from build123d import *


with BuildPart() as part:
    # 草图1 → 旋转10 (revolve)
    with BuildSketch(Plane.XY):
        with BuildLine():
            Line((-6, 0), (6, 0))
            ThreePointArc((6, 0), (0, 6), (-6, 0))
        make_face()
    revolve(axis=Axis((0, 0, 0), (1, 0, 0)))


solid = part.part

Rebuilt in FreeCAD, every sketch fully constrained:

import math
import FreeCAD as App
import Part
import Sketcher

V = App.Vector

doc = App.newDocument("Part")
body = doc.addObject("PartDesign::Body", "Body")

# Sketch on XY plane
sketch1 = body.newObject("Sketcher::SketchObject", "Sketch")
sketch1.AttachmentSupport = (doc.getObject("XY_Plane"), [""])
sketch1.MapMode = "FlatFace"
sketch1.addGeometry([
    Part.LineSegment(V(-6, 0, 0), V(6, 0, 0)),
    Part.ArcOfCircle(Part.Circle(V(0, 0, 0), V(0, 0, 1), 6), math.radians(0), math.radians(180)),
], False)
sketch1.addConstraint([
    Sketcher.Constraint("Coincident", 0, 1, 1, 2),
    Sketcher.Constraint("Coincident", 1, 1, 0, 2),
    Sketcher.Constraint("Horizontal", 0),
    Sketcher.Constraint("Coincident", 1, 3, -1, 1),
    Sketcher.Constraint("PointOnObject", 0, 1, -1),
    Sketcher.Constraint("Radius", 1, 6.0),
])
revolution = body.newObject("PartDesign::Revolution", "Revolution")
revolution.Profile = sketch1
revolution.ReferenceAxis = (sketch1, ["H_Axis"])
revolution.Angle = 360

doc.recompute()
